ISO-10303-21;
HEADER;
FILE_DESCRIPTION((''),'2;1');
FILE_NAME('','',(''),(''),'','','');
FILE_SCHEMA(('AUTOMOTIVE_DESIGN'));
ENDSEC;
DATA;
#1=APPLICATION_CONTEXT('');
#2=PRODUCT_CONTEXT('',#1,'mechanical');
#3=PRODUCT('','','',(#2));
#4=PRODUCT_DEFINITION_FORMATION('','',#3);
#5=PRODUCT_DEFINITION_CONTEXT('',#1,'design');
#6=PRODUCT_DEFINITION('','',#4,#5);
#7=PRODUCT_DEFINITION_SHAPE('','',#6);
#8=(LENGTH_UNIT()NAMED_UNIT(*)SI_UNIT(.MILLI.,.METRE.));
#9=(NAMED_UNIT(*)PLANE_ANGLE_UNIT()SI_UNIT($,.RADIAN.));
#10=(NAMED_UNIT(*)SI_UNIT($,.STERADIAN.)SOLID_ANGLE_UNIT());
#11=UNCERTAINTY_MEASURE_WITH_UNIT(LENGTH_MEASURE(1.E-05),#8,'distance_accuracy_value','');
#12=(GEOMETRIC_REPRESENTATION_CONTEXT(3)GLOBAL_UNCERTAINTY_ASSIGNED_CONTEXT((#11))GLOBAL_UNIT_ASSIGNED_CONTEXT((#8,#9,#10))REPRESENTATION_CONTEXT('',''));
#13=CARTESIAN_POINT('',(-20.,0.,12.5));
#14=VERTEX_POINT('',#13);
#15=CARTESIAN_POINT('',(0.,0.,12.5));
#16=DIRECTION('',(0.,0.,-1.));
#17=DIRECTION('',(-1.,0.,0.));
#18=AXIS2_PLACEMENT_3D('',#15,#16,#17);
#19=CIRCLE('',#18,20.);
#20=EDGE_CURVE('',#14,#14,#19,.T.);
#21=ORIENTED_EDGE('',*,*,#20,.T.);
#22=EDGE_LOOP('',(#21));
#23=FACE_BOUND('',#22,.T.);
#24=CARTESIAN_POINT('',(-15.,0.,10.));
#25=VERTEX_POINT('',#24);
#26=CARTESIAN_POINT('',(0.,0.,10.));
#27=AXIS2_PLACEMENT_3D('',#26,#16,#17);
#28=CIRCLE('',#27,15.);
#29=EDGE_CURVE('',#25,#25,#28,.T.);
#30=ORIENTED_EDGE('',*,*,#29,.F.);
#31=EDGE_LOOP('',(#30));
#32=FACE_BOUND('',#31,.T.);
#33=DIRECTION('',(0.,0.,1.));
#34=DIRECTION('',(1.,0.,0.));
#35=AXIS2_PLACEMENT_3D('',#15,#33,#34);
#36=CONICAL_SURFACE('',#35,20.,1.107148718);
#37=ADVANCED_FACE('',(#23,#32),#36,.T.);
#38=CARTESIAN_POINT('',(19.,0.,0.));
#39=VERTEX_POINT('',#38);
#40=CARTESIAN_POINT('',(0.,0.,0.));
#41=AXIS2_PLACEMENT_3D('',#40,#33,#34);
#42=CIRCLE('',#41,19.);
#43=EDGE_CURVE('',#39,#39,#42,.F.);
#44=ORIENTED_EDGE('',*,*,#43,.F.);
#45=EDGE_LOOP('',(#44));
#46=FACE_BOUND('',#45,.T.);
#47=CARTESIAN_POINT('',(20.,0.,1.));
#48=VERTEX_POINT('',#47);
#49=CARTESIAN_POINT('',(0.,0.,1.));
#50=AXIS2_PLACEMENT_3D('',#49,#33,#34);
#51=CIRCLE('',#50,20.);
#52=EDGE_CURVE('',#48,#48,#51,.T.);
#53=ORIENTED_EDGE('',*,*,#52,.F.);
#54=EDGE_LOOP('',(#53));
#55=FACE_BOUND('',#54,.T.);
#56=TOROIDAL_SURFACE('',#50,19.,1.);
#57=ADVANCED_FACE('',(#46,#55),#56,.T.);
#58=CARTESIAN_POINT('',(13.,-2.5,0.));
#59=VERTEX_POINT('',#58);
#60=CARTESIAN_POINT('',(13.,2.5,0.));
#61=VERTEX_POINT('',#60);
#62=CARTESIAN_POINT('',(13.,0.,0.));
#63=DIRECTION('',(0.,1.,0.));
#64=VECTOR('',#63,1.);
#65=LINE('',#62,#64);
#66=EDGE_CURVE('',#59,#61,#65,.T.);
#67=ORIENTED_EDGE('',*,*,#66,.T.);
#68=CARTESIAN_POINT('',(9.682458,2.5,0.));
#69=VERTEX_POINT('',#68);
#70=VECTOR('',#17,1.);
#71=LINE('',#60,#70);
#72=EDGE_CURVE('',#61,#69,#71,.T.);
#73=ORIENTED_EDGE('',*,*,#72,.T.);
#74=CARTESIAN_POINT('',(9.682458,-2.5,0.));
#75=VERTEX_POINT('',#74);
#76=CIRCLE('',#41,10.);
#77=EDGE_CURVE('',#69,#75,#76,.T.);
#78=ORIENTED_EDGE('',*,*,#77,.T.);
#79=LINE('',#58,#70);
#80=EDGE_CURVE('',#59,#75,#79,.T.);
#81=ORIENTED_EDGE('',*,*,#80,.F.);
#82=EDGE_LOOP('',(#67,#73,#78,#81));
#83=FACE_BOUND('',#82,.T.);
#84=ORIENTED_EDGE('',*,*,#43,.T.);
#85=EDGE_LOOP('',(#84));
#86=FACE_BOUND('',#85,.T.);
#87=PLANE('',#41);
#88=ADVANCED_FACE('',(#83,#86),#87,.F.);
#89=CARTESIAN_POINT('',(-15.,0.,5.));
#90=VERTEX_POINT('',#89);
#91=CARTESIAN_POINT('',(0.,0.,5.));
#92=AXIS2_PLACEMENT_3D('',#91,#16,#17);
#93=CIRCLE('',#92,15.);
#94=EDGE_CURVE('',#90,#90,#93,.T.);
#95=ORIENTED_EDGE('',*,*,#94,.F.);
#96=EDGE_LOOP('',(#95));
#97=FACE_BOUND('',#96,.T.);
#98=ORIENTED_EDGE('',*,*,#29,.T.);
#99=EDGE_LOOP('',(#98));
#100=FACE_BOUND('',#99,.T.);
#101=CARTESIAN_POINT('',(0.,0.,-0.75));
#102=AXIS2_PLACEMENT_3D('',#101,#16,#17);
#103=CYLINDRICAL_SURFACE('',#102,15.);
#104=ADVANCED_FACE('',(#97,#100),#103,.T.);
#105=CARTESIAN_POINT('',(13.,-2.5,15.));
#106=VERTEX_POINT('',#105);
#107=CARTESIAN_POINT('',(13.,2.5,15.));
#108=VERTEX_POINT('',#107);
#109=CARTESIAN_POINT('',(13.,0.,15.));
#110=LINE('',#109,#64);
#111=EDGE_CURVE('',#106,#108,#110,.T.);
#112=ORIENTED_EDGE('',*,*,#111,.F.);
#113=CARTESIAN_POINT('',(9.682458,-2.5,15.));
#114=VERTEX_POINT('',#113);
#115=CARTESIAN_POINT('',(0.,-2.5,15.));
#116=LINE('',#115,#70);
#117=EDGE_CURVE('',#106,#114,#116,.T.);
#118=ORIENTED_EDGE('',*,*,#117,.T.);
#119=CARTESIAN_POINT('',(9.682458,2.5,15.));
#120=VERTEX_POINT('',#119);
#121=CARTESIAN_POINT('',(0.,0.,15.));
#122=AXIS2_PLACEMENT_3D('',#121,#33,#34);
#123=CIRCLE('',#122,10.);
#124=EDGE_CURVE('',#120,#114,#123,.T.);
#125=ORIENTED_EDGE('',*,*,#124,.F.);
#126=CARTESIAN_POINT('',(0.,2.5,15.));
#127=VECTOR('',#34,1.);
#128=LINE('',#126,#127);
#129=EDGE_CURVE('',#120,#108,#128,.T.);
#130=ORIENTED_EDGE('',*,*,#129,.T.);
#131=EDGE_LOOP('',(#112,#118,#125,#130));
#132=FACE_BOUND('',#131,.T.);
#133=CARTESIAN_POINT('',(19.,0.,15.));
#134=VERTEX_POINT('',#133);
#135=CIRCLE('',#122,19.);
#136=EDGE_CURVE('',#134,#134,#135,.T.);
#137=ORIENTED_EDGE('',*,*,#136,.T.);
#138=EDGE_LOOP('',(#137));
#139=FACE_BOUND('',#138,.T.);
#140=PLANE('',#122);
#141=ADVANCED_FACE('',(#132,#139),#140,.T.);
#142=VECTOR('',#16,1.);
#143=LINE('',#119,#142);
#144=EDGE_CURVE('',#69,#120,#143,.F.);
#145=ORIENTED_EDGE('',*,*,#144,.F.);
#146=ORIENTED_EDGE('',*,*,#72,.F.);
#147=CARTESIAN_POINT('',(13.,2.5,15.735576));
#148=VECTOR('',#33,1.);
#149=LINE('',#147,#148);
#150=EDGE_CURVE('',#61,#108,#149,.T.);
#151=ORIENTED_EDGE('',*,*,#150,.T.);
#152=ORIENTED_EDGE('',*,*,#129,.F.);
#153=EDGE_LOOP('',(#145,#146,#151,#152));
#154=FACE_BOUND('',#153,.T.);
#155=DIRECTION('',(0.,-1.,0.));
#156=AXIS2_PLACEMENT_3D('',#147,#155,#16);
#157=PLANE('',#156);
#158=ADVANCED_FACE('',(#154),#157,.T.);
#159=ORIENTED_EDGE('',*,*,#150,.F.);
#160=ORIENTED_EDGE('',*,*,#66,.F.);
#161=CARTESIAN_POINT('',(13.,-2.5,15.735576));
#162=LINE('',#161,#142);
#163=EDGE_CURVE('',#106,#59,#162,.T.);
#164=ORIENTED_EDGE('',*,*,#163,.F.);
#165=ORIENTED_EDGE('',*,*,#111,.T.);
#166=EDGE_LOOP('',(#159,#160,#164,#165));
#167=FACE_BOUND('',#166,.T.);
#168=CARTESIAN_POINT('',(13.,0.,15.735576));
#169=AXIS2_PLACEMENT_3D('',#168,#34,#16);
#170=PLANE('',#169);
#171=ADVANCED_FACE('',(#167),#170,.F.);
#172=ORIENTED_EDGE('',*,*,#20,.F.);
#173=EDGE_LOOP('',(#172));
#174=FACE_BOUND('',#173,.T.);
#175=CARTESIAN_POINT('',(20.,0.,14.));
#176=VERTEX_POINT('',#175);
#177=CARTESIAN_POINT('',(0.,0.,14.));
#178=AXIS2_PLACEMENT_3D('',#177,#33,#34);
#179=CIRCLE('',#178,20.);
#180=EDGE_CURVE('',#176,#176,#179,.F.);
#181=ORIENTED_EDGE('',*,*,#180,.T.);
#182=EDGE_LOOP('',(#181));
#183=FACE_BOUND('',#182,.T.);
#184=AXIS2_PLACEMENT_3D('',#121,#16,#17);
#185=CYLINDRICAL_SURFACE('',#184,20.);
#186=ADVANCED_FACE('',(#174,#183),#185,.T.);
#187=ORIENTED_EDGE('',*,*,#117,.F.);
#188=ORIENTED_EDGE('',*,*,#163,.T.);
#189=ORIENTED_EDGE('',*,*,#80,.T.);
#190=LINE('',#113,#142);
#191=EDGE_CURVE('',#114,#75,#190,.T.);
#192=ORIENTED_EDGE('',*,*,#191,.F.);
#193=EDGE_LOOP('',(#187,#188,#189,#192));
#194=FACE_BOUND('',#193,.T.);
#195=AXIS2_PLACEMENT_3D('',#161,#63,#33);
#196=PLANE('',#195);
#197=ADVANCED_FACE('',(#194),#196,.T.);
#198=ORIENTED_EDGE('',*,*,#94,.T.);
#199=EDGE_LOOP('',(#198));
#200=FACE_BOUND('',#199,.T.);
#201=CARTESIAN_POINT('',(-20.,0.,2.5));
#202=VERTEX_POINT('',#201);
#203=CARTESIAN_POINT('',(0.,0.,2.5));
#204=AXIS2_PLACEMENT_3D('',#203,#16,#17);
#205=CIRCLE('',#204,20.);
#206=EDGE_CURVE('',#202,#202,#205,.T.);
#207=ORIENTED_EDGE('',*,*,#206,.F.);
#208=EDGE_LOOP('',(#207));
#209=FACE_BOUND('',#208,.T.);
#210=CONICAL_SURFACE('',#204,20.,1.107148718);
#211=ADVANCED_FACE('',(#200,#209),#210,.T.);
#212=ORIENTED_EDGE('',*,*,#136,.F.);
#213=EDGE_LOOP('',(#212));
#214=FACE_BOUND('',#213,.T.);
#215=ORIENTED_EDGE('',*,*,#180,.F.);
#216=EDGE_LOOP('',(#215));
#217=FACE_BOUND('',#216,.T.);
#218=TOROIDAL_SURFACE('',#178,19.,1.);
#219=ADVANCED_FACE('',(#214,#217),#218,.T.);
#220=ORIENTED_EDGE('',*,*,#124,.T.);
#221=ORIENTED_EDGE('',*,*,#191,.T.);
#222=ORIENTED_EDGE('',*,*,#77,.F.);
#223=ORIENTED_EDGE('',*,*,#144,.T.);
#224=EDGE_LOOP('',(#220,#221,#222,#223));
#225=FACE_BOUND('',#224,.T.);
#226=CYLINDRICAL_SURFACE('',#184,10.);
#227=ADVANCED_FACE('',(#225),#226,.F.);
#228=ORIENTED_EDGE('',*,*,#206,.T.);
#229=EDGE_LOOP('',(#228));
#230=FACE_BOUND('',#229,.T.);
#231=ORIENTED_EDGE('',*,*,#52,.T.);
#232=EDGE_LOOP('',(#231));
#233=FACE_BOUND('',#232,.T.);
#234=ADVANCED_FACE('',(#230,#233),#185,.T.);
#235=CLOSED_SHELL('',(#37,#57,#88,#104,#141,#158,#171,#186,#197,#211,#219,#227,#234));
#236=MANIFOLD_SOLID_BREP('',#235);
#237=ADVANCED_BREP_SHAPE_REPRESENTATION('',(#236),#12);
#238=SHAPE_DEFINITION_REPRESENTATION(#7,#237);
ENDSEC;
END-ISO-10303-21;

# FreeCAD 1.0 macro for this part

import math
import FreeCAD as App
import Part
import Sketcher

V = App.Vector
Q = App.Units.Quantity


def edges_at(feature, points):
    """Names of the edges that pass closest to the given points."""
    edges = feature.Shape.Edges
    near = lambda p: min(range(len(edges)), key=lambda i: edges[i].distToShape(Part.Vertex(*p))[0])
    return sorted({f"Edge{near(p) + 1}" for p in points})


def add_polygon(sketch, points):
    """Adds a closed chain of lines whose ends are joined by coincident constraints."""
    first, n = sketch.GeometryCount, len(points)
    for a, b in zip(points, points[1:] + points[:1]):
        sketch.addGeometry(Part.LineSegment(App.Vector(*a, 0), App.Vector(*b, 0)), False)
    for i in range(n):
        sketch.addConstraint(Sketcher.Constraint("Coincident", first + i, 2, first + (i + 1) % n, 1))

doc = App.newDocument("Part")
body = doc.addObject("PartDesign::Body", "Body")

# Sketch on XY plane
sketch1 = body.newObject("Sketcher::SketchObject", "Sketch")
sketch1.AttachmentSupport = (doc.getObject("XY_Plane"), [""])
sketch1.MapMode = "FlatFace"
sketch1.addGeometry(Part.Circle(V(0, 0, 0), V(0, 0, 1), 20), False)
sketch1.addGeometry(Part.Circle(V(0, 0, 0), V(0, 0, 1), 10), False)
sketch1.addConstraint(Sketcher.Constraint("Coincident", 0, 3, -1, 1))
sketch1.addConstraint(Sketcher.Constraint("Coincident", 1, 3, -1, 1))
sketch1.addConstraint(Sketcher.Constraint("Diameter", 0, Q("40 mm")))
sketch1.addConstraint(Sketcher.Constraint("Diameter", 1, Q("20 mm")))
pad1 = body.newObject("PartDesign::Pad", "Pad")
pad1.Profile = sketch1
pad1.Length = 15

# Sketch on YZ plane
sketch2 = body.newObject("Sketcher::SketchObject", "Sketch001")
sketch2.AttachmentSupport = (doc.getObject("YZ_Plane"), [""])
sketch2.MapMode = "FlatFace"
add_polygon(sketch2, [(15, 5), (20, 2), (20, 12), (15, 10)])  # lines 0-3
sketch2.addConstraint(Sketcher.Constraint("Vertical", 1))
sketch2.addConstraint(Sketcher.Constraint("Vertical", 3))
sketch2.addConstraint(Sketcher.Constraint("Equal", 0, 2))
sketch2.addConstraint(Sketcher.Constraint("DistanceY", 1, 1, 1, 2, Q("10 mm")))
sketch2.addConstraint(Sketcher.Constraint("DistanceY", 3, 2, 3, 1, Q("5 mm")))
sketch2.addConstraint(Sketcher.Constraint("DistanceX", -1, 1, 0, 2, Q("20 mm")))
sketch2.addConstraint(Sketcher.Constraint("DistanceX", -1, 1, 2, 2, Q("15 mm")))
sketch2.addConstraint(Sketcher.Constraint("DistanceY", -1, 1, 2, 2, Q("10 mm")))
groove = body.newObject("PartDesign::Groove", "Groove")
groove.Profile = sketch2
groove.ReferenceAxis = (sketch2, ["V_Axis"])
groove.Angle = 360

# Sketch on YZ plane
sketch3 = body.newObject("Sketcher::SketchObject", "Sketch002")
sketch3.AttachmentSupport = (doc.getObject("YZ_Plane"), [""])
sketch3.MapMode = "FlatFace"
sketch3.AttachmentOffset = App.Placement(V(0, 0, 10), App.Rotation())
sketch3.addGeometry(Part.LineSegment(V(2.5, 0, 0), V(2.5, 15.7, 0)), False)
sketch3.addGeometry(Part.ArcOfCircle(Part.Circle(V(0, 15.7, 0), V(0, 0, 1), 2.5), math.radians(0), math.radians(180)), False)
sketch3.addGeometry(Part.LineSegment(V(-2.5, 15.7, 0), V(-2.5, 0, 0)), False)
sketch3.addGeometry(Part.ArcOfCircle(Part.Circle(V(0, 0, 0), V(0, 0, 1), 2.5), math.radians(180), math.radians(360)), False)
sketch3.addConstraint(Sketcher.Constraint("Tangent", 0, 2, 1, 1))
sketch3.addConstraint(Sketcher.Constraint("Tangent", 1, 2, 2, 1))
sketch3.addConstraint(Sketcher.Constraint("Tangent", 2, 2, 3, 1))
sketch3.addConstraint(Sketcher.Constraint("Tangent", 3, 2, 0, 1))
sketch3.addConstraint(Sketcher.Constraint("Vertical", 0))
sketch3.addConstraint(Sketcher.Constraint("Vertical", 2))
sketch3.addConstraint(Sketcher.Constraint("Coincident", 3, 3, -1, 1))
sketch3.addConstraint(Sketcher.Constraint("Radius", 1, Q("2.5 mm")))
sketch3.addConstraint(Sketcher.Constraint("DistanceY", 0, 1, 0, 2, Q("15.735576 mm")))
pocket1 = body.newObject("PartDesign::Pocket", "Pocket")
pocket1.Profile = sketch3
pocket1.Type = "TwoLengths"
pocket1.Length = 3
pocket1.Length2 = 10
pocket1.Reversed = True
doc.recompute()

fillet = body.newObject("PartDesign::Fillet", "Fillet")
fillet.Base = (pocket1, edges_at(pocket1, [(-20, 0, 0), (-20, 0, 15)]))
fillet.Radius = 1

doc.recompute()
